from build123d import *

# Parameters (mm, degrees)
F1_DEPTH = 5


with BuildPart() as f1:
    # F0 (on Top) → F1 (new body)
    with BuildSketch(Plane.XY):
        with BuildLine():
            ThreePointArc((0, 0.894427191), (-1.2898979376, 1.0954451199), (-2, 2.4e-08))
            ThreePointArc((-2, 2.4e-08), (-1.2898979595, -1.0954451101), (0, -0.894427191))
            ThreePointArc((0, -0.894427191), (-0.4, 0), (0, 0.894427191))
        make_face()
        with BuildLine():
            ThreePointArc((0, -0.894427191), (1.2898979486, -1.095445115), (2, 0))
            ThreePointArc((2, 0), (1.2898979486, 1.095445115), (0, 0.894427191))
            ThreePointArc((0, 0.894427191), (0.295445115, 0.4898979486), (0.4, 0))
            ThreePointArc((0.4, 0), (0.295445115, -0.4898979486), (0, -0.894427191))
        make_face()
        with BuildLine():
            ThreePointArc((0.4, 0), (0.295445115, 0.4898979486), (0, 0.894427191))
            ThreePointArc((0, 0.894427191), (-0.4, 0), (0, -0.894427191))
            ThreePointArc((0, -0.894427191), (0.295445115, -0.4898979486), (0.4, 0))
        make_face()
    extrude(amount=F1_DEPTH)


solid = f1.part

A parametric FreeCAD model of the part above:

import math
import FreeCAD as App
import Part
import Sketcher

V = App.Vector

doc = App.newDocument("Part")
body = doc.addObject("PartDesign::Body", "Body")

sketch1 = body.newObject("Sketcher::SketchObject", "Sketch")
sketch1.AttachmentSupport = (doc.getObject("XY_Plane"), [""])
sketch1.MapMode = "FlatFace"
sketch1.addGeometry([
    Part.ArcOfCircle(Part.Circle(V(-0.8, 0, 0), V(0, 0, 1), 1.2), math.radians(48), math.radians(180)),
    Part.ArcOfCircle(Part.Circle(V(-0.8, 0, 0), V(0, 0, 1), 1.2), math.radians(180), math.radians(312)),
    Part.ArcOfCircle(Part.Circle(V(0.8, 0, 0), V(0, 0, 1), 1.2), math.radians(-132), math.radians(0)),
    Part.ArcOfCircle(Part.Circle(V(0.8, 0, 0), V(0, 0, 1), 1.2), math.radians(0), math.radians(132)),
], False)
sketch1.addConstraint([
    Sketcher.Constraint("Tangent", 0, 2, 1, 1),
    Sketcher.Constraint("Coincident", 1, 2, 2, 1),
    Sketcher.Constraint("Tangent", 2, 2, 3, 1),
    Sketcher.Constraint("Coincident", 3, 2, 0, 1),
    Sketcher.Constraint("Equal", 0, 1),
    Sketcher.Constraint("Equal", 1, 2),
    Sketcher.Constraint("Equal", 2, 3),
    Sketcher.Constraint("Symmetric", 0, 3, 2, 3, -1, 1),
    Sketcher.Constraint("PointOnObject", 0, 3, -1),
    Sketcher.Constraint("PointOnObject", 0, 2, -1),
    Sketcher.Constraint("PointOnObject", 2, 2, -1),
    Sketcher.Constraint("Radius", 0, 1.2),
    Sketcher.Constraint("DistanceX", 0, 2, -1, 1, 2.0),
])
pad1 = body.newObject("PartDesign::Pad", "Pad")
pad1.Profile = sketch1
pad1.Length = 5

doc.recompute()
